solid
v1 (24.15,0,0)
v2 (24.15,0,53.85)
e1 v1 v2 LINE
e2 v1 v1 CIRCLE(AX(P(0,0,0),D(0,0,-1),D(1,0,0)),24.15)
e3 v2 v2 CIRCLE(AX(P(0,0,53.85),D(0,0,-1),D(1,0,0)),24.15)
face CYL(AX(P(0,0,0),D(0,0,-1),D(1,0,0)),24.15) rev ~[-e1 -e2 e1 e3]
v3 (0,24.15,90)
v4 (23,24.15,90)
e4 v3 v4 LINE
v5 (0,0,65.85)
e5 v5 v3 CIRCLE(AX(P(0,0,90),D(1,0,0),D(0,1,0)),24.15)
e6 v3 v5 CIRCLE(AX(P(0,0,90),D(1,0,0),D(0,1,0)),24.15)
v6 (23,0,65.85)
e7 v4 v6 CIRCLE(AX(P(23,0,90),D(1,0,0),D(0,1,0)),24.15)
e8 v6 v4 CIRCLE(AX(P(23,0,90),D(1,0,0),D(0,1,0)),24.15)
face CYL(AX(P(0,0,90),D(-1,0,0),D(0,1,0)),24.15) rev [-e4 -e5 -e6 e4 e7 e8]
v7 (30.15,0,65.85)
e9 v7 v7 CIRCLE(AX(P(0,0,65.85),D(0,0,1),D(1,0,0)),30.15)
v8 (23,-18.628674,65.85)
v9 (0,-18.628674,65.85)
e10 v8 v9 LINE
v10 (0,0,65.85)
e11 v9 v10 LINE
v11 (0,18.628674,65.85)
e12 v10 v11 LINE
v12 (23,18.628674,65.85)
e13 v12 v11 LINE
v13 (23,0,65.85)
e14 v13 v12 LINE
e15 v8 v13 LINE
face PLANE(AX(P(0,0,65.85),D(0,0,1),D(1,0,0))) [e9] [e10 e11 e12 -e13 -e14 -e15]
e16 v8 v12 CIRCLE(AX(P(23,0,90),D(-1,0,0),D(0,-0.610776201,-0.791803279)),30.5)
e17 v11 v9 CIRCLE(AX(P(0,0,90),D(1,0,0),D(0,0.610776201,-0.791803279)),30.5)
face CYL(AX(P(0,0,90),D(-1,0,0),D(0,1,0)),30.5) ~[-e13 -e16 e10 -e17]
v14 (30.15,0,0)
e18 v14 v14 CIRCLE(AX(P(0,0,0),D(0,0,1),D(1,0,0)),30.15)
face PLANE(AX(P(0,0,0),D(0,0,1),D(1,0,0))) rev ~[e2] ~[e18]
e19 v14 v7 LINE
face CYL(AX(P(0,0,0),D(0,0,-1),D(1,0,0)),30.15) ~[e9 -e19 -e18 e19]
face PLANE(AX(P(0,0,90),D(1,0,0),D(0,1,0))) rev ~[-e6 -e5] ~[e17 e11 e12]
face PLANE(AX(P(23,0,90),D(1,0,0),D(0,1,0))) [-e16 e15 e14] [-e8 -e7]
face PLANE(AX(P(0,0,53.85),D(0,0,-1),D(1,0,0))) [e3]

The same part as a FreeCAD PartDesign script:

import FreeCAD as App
import Part
import Sketcher
from FreeCAD import Vector
Q = App.Units.Quantity

doc = App.newDocument("Part")
body = doc.addObject("PartDesign::Body", "Body")

# Sketch on XY plane
sketch1 = body.newObject("Sketcher::SketchObject", "Sketch")
sketch1.AttachmentSupport = (doc.getObject("XY_Plane"), [""])
sketch1.MapMode = "FlatFace"
sketch1.addGeometry(Part.Circle(Vector(0, 0, 0), Vector(0, 0, 1), 30), False)
sketch1.addConstraint([
    Sketcher.Constraint("Coincident", 0, 3, -1, 1),
    Sketcher.Constraint("Diameter", 0, Q("60.3 mm")),
])
pad1 = body.newObject("PartDesign::Pad", "Pad")
pad1.Profile = sketch1
pad1.Length = 65.85

# Sketch on XY plane
sketch2 = body.newObject("Sketcher::SketchObject", "Sketch001")
sketch2.AttachmentSupport = (doc.getObject("XY_Plane"), [""])
sketch2.MapMode = "FlatFace"
sketch2.addGeometry(Part.Circle(Vector(0, 0, 0), Vector(0, 0, 1), 24), False)
sketch2.addConstraint([
    Sketcher.Constraint("Coincident", 0, 3, -1, 1),
    Sketcher.Constraint("Diameter", 0, Q("48.3 mm")),
])
pocket1 = body.newObject("PartDesign::Pocket", "Pocket")
pocket1.Profile = sketch2
pocket1.Length = 53.85
pocket1.Reversed = True

# Sketch on YZ plane
sketch3 = body.newObject("Sketcher::SketchObject", "Sketch002")
sketch3.AttachmentSupport = (doc.getObject("YZ_Plane"), [""])
sketch3.MapMode = "FlatFace"
sketch3.addGeometry([
    Part.Circle(Vector(0, 90, 0), Vector(0, 0, 1), 30),
    Part.Circle(Vector(0, 90, 0), Vector(0, 0, 1), 24),
], False)
sketch3.addConstraint([
    Sketcher.Constraint("Coincident", 1, 3, 0, 3),
    Sketcher.Constraint("PointOnObject", 0, 3, -2),
    Sketcher.Constraint("Diameter", 0, Q("61 mm")),
    Sketcher.Constraint("Diameter", 1, Q("48.3 mm")),
    Sketcher.Constraint("DistanceY", -1, 1, 0, 3, Q("90 mm")),
])
pad2 = body.newObject("PartDesign::Pad", "Pad001")
pad2.Profile = sketch3
pad2.Length = 23

doc.recompute()
